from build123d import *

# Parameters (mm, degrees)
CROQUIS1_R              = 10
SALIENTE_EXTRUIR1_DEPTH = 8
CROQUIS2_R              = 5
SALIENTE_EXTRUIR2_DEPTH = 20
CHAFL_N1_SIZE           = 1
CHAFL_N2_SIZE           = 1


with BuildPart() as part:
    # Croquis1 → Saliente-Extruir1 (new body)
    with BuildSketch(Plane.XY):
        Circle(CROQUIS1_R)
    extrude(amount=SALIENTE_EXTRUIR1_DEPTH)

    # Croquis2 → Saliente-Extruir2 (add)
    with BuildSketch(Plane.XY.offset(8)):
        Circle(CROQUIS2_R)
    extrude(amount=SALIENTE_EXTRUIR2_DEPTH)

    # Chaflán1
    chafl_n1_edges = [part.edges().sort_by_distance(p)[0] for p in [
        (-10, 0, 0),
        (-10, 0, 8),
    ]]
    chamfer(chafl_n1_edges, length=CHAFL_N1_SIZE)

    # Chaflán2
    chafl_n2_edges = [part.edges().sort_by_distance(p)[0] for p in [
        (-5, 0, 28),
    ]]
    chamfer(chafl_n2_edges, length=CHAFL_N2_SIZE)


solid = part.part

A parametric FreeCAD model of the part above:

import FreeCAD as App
import Part
import Sketcher

V = App.Vector
Q = App.Units.Quantity


def edges_at(feature, points):
    """Names of the edges that pass closest to the given points."""
    edges = feature.Shape.Edges
    near = lambda p: min(range(len(edges)), key=lambda i: edges[i].distToShape(Part.Vertex(*p))[0])
    return sorted({f"Edge{near(p) + 1}" for p in points})

doc = App.newDocument("Part")
body = doc.addObject("PartDesign::Body", "Body")

# Sketch on XY plane
sketch1 = body.newObject("Sketcher::SketchObject", "Sketch")
sketch1.AttachmentSupport = (doc.getObject("XY_Plane"), [""])
sketch1.MapMode = "FlatFace"
sketch1.addGeometry(Part.Circle(V(0, 0, 0), V(0, 0, 1), 10), False)
sketch1.addConstraint(Sketcher.Constraint("Coincident", 0, 3, -1, 1))
sketch1.addConstraint(Sketcher.Constraint("Diameter", 0, Q("20 mm")))
pad1 = body.newObject("PartDesign::Pad", "Pad")
pad1.Profile = sketch1
pad1.Length = 8

# Sketch on XY plane
sketch2 = body.newObject("Sketcher::SketchObject", "Sketch001")
sketch2.AttachmentSupport = (doc.getObject("XY_Plane"), [""])
sketch2.MapMode = "FlatFace"
sketch2.AttachmentOffset = App.Placement(V(0, 0, 8), App.Rotation())
sketch2.addGeometry(Part.Circle(V(0, 0, 0), V(0, 0, 1), 5), False)
sketch2.addConstraint(Sketcher.Constraint("Coincident", 0, 3, -1, 1))
sketch2.addConstraint(Sketcher.Constraint("Diameter", 0, Q("10 mm")))
pad2 = body.newObject("PartDesign::Pad", "Pad001")
pad2.Profile = sketch2
pad2.Length = 20
doc.recompute()

chamfer = body.newObject("PartDesign::Chamfer", "Chamfer")
chamfer.Base = (pad2, edges_at(pad2, [(-10, 0, 0), (-10, 0, 8)]))
chamfer.Size = 1
doc.recompute()

chamfer2 = body.newObject("PartDesign::Chamfer", "Chamfer001")
chamfer2.Base = (chamfer, edges_at(chamfer, [(-5, 0, 28)]))
chamfer2.Size = 1

doc.recompute()
